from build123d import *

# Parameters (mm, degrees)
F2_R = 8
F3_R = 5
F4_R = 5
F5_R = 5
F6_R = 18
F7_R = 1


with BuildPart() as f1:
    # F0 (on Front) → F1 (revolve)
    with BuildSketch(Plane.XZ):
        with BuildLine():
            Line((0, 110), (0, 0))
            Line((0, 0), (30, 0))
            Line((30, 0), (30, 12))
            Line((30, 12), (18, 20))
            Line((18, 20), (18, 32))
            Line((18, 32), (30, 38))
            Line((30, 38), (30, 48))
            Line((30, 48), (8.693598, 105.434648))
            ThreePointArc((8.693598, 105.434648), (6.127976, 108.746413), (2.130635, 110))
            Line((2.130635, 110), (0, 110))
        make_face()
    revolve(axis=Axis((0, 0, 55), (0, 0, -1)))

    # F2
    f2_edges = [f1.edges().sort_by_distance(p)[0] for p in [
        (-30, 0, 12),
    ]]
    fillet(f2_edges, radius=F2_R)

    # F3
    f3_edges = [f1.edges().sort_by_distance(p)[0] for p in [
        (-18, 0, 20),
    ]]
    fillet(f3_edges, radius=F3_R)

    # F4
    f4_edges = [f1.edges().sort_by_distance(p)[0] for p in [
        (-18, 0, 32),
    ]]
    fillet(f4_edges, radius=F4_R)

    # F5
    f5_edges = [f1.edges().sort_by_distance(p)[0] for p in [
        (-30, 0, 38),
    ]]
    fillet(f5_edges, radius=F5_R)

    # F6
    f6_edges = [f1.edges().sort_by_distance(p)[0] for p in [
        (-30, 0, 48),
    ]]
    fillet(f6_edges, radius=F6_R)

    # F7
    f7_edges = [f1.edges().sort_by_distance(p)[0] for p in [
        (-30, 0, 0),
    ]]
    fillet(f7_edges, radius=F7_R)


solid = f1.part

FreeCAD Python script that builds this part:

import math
import FreeCAD as App
import Part
import Sketcher

V = App.Vector
Q = App.Units.Quantity


def edges_at(feature, points):
    """Names of the edges that pass closest to the given points."""
    edges = feature.Shape.Edges
    near = lambda p: min(range(len(edges)), key=lambda i: edges[i].distToShape(Part.Vertex(*p))[0])
    return sorted({f"Edge{near(p) + 1}" for p in points})

doc = App.newDocument("Part")
body = doc.addObject("PartDesign::Body", "Body")

# Sketch on XZ plane
sketch1 = body.newObject("Sketcher::SketchObject", "Sketch")
sketch1.AttachmentSupport = (doc.getObject("XZ_Plane"), [""])
sketch1.MapMode = "FlatFace"
sketch1.addGeometry([
    Part.LineSegment(V(0, 110, 0), V(0, 0, 0)),  # 0
    Part.LineSegment(V(0, 0, 0), V(30, 0, 0)),  # 1
    Part.LineSegment(V(30, 0, 0), V(30, 12, 0)),  # 2
    Part.LineSegment(V(30, 12, 0), V(18, 20, 0)),  # 3
    Part.LineSegment(V(18, 20, 0), V(18, 32, 0)),  # 4
    Part.LineSegment(V(18, 32, 0), V(30, 38, 0)),  # 5
    Part.LineSegment(V(30, 38, 0), V(30, 48, 0)),  # 6
    Part.LineSegment(V(30, 48, 0), V(8.693598, 105.434648, 0)),  # 7
    Part.ArcOfCircle(Part.Circle(V(2.130635, 103, 0), V(0, 0, 1), 7), math.radians(20.353229), math.radians(89.999998)),  # 8
    Part.LineSegment(V(2.130635, 110, 0), V(0, 110, 0)),  # 9
], False)
sketch1.addConstraint([
    Sketcher.Constraint("Coincident", 0, 2, 1, 1),
    Sketcher.Constraint("Coincident", 1, 2, 2, 1),
    Sketcher.Constraint("Coincident", 2, 2, 3, 1),
    Sketcher.Constraint("Coincident", 3, 2, 4, 1),
    Sketcher.Constraint("Coincident", 4, 2, 5, 1),
    Sketcher.Constraint("Coincident", 5, 2, 6, 1),
    Sketcher.Constraint("Coincident", 6, 2, 7, 1),
    Sketcher.Constraint("Tangent", 7, 2, 8, 1),
    Sketcher.Constraint("Tangent", 8, 2, 9, 1),
    Sketcher.Constraint("Coincident", 9, 2, 0, 1),
    Sketcher.Constraint("Vertical", 0),
    Sketcher.Constraint("Horizontal", 1),
    Sketcher.Constraint("Vertical", 2),
    Sketcher.Constraint("Vertical", 4),
    Sketcher.Constraint("Vertical", 6),
    Sketcher.Constraint("Horizontal", 9),
    Sketcher.Constraint("Coincident", 0, 2, -1, 1),
    Sketcher.Constraint("Vertical", 2, 2, 5, 2),
    Sketcher.Constraint("Equal", 2, 4),
    Sketcher.Constraint("Radius", 8, Q("7 mm")),
    Sketcher.Constraint("DistanceX", 1, 1, 1, 2, Q("30 mm")),
    Sketcher.Constraint("DistanceY", 0, 2, 0, 1, Q("110 mm")),
    Sketcher.Constraint("DistanceY", 2, 1, 2, 2, Q("12 mm")),
    Sketcher.Constraint("DistanceY", 6, 1, 6, 2, Q("10 mm")),
    Sketcher.Constraint("DistanceX", -1, 1, 3, 2, Q("18 mm")),
    Sketcher.Constraint("DistanceY", -1, 1, 3, 2, Q("20 mm")),
    Sketcher.Constraint("DistanceY", -1, 1, 5, 2, Q("38 mm")),
    Sketcher.Constraint("DistanceX", 7, 2, 6, 2, Q("21.306402 mm")),
])
revolution = body.newObject("PartDesign::Revolution", "Revolution")
revolution.Profile = sketch1
revolution.ReferenceAxis = (sketch1, ["V_Axis"])
revolution.Angle = 360
doc.recompute()

fillet = body.newObject("PartDesign::Fillet", "Fillet")
fillet.Base = (revolution, edges_at(revolution, [(-30, 0, 12)]))
fillet.Radius = 8
doc.recompute()

fillet2 = body.newObject("PartDesign::Fillet", "Fillet001")
fillet2.Base = (fillet, edges_at(fillet, [(-18, 0, 20)]))
fillet2.Radius = 5
doc.recompute()

fillet3 = body.newObject("PartDesign::Fillet", "Fillet002")
fillet3.Base = (fillet2, edges_at(fillet2, [(-18, 0, 32)]))
fillet3.Radius = 5
doc.recompute()

fillet4 = body.newObject("PartDesign::Fillet", "Fillet003")
fillet4.Base = (fillet3, edges_at(fillet3, [(-30, 0, 38)]))
fillet4.Radius = 5
doc.recompute()

fillet5 = body.newObject("PartDesign::Fillet", "Fillet004")
fillet5.Base = (fillet4, edges_at(fillet4, [(-30, 0, 48)]))
fillet5.Radius = 18
doc.recompute()

fillet6 = body.newObject("PartDesign::Fillet", "Fillet005")
fillet6.Base = (fillet5, edges_at(fillet5, [(-30, 0, 0)]))
fillet6.Radius = 1

doc.recompute()
